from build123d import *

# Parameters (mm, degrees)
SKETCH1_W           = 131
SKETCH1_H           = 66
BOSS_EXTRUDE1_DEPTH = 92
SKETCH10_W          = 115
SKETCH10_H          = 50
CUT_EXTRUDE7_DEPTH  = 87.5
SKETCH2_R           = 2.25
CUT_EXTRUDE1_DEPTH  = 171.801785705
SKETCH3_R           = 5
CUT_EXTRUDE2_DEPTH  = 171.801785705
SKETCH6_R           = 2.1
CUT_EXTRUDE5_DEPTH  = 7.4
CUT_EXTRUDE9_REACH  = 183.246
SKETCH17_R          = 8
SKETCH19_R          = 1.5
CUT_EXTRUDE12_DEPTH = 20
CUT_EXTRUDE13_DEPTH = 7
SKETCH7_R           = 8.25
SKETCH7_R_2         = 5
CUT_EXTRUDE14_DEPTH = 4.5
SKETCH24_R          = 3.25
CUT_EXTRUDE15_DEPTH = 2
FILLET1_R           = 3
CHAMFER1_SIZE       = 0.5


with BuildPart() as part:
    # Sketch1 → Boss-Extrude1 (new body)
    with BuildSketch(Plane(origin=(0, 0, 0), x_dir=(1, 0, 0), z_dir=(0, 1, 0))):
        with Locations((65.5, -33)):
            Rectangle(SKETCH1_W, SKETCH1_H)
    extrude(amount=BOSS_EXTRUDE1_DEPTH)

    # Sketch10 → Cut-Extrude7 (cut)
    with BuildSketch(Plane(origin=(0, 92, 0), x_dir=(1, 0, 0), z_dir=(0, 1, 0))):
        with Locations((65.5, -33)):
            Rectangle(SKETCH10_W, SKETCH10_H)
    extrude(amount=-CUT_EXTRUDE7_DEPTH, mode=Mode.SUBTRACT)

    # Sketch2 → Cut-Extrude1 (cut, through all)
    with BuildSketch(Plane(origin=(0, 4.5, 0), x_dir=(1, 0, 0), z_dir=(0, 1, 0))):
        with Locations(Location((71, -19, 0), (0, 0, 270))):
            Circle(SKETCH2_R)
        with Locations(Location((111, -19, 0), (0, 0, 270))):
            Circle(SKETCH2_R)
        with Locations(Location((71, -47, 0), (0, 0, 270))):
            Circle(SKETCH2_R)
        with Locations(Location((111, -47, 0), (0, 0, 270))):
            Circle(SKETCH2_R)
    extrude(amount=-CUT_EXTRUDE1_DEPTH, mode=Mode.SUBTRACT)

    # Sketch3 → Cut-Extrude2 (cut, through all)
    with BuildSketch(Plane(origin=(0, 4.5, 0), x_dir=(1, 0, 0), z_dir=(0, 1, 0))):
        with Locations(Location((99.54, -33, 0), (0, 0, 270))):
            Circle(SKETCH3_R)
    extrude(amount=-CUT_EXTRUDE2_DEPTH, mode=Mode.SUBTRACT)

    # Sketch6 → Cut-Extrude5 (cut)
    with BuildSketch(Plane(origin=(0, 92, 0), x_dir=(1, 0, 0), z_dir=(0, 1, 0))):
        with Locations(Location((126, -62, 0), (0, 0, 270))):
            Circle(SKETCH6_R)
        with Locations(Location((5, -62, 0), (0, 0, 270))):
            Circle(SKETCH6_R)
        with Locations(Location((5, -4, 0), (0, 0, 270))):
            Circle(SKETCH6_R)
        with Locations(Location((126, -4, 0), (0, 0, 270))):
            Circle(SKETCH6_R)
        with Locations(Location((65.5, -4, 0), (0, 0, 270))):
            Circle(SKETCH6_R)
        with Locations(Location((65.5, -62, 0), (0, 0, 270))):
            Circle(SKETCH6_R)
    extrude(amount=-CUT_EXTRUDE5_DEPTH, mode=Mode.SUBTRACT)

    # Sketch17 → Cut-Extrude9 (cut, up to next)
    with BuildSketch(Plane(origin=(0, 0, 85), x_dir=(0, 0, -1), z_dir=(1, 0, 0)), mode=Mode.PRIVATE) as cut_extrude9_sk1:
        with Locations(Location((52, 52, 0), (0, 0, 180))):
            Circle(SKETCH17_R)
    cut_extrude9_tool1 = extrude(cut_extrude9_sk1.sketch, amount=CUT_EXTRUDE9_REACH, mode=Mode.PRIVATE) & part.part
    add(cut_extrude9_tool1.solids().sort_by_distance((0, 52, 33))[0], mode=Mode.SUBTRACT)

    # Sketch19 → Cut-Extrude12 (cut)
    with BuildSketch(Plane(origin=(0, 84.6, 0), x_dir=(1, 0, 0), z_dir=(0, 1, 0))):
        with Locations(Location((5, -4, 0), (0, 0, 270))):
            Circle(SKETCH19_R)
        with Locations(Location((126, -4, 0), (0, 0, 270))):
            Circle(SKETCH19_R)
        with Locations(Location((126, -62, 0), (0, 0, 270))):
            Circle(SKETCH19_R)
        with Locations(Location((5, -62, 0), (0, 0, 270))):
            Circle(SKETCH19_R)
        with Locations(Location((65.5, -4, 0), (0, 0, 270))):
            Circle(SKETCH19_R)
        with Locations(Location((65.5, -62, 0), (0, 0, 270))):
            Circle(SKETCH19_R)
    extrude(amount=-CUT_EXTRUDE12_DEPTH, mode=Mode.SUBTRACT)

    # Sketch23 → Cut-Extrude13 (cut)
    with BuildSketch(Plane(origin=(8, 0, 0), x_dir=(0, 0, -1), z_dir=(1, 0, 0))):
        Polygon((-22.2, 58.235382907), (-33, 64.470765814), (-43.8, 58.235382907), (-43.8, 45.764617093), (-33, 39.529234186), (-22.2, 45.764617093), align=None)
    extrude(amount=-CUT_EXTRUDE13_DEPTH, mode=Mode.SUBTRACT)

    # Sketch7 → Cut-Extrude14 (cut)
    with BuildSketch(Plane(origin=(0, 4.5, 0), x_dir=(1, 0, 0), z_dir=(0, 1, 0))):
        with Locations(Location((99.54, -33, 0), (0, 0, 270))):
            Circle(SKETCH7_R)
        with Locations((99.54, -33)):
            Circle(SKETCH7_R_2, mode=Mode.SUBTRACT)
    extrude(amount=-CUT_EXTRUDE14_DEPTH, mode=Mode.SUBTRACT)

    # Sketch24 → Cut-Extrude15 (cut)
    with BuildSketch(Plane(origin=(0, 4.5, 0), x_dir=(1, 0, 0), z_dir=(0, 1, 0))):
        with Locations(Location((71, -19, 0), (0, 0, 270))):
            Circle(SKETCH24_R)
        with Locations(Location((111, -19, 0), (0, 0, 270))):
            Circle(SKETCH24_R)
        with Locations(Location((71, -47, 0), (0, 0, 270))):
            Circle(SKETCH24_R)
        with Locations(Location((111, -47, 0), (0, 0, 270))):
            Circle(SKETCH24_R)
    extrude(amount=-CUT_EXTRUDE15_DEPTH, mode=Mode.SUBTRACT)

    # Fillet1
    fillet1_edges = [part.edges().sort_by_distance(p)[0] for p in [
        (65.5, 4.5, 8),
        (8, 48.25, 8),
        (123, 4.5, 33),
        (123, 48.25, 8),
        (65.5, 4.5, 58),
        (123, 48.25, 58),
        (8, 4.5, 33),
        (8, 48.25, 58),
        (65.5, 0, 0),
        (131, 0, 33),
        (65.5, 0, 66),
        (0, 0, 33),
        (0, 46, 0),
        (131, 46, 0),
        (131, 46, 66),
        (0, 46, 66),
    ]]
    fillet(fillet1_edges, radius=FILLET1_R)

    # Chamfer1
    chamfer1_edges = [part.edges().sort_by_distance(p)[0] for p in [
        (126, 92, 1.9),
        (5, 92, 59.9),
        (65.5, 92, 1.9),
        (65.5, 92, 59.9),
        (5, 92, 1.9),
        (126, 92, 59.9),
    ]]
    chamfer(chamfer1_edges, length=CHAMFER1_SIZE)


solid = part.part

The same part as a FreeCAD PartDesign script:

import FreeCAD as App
import Part
import Sketcher
Q = App.Units.Quantity


def edges_at(feature, points):
    """Names of the edges that pass closest to the given points."""
    edges = feature.Shape.Edges
    near = lambda p: min(range(len(edges)), key=lambda i: edges[i].distToShape(Part.Vertex(*p))[0])
    return sorted({f"Edge{near(p) + 1}" for p in points})


def add_polygon(sketch, points):
    """Adds a closed chain of lines whose ends are joined by coincident constraints."""
    first, n = sketch.GeometryCount, len(points)
    for a, b in zip(points, points[1:] + points[:1]):
        sketch.addGeometry(Part.LineSegment(App.Vector(*a, 0), App.Vector(*b, 0)), False)
    for i in range(n):
        sketch.addConstraint(Sketcher.Constraint("Coincident", first + i, 2, first + (i + 1) % n, 1))

doc = App.newDocument("Part")
body = doc.addObject("PartDesign::Body", "Body")

sketch1 = body.newObject("Sketcher::SketchObject", "Sketch")
sketch1.AttachmentSupport = (doc.getObject("XZ_Plane"), [""])
sketch1.MapMode = "FlatFace"
add_polygon(sketch1, [(0, 0), (0, 66), (131, 66), (131, 0)])
sketch1.addConstraint([
    Sketcher.Constraint("Vertical", 0),
    Sketcher.Constraint("Horizontal", 1),
    Sketcher.Constraint("Vertical", 2),
    Sketcher.Constraint("Horizontal", 3),
    Sketcher.Constraint("Coincident", 3, 2, -1, 1),
    Sketcher.Constraint("DistanceX", 1, 1, 1, 2, 131.0),
    Sketcher.Constraint("DistanceY", 0, 1, 0, 2, 66.0),
])
pad1 = body.newObject("PartDesign::Pad", "Pad")
pad1.Profile = sketch1
pad1.Length = 92
pad1.Reversed = True

sketch2 = body.newObject("Sketcher::SketchObject", "Sketch001")
sketch2.AttachmentSupport = (doc.getObject("XZ_Plane"), [""])
sketch2.MapMode = "FlatFace"
sketch2.AttachmentOffset = App.Placement(App.Vector(0, 0, -92), App.Rotation())
add_polygon(sketch2, [(8, 8), (8, 58), (123, 58), (123, 8)])
sketch2.addConstraint([
    Sketcher.Constraint("Vertical", 0),
    Sketcher.Constraint("Horizontal", 1),
    Sketcher.Constraint("Vertical", 2),
    Sketcher.Constraint("Horizontal", 3),
    Sketcher.Constraint("DistanceX", 1, 1, 1, 2, 115.0),
    Sketcher.Constraint("DistanceY", 0, 1, 0, 2, 50.0),
    Sketcher.Constraint("DistanceX", -1, 1, 0, 2, 8.0),
    Sketcher.Constraint("DistanceY", -1, 1, 0, 2, 58.0),
])
pocket1 = body.newObject("PartDesign::Pocket", "Pocket")
pocket1.Profile = sketch2
pocket1.Length = 87.5
pocket1.Reversed = True

sketch3 = body.newObject("Sketcher::SketchObject", "Sketch002")
sketch3.AttachmentSupport = (doc.getObject("XZ_Plane"), [""])
sketch3.MapMode = "FlatFace"
sketch3.AttachmentOffset = App.Placement(App.Vector(0, 0, -4.5), App.Rotation())
sketch3.addGeometry([
    Part.Circle(App.Vector(71, 19, 0), App.Vector(0, 0, 1), 2.2),
    Part.Circle(App.Vector(111, 19, 0), App.Vector(0, 0, 1), 2.2),
    Part.Circle(App.Vector(71, 47, 0), App.Vector(0, 0, 1), 2.2),
    Part.Circle(App.Vector(111, 47, 0), App.Vector(0, 0, 1), 2.2),
], False)
sketch3.addConstraint([
    Sketcher.Constraint("Equal", 0, 1),
    Sketcher.Constraint("Equal", 1, 2),
    Sketcher.Constraint("Equal", 2, 3),
    Sketcher.Constraint("Horizontal", 0, 3, 1, 3),
    Sketcher.Constraint("Horizontal", 2, 3, 3, 3),
    Sketcher.Constraint("Vertical", 0, 3, 2, 3),
    Sketcher.Constraint("Vertical", 1, 3, 3, 3),
    Sketcher.Constraint("Diameter", 0, 4.5),
    Sketcher.Constraint("DistanceX", -1, 1, 0, 3, 71.0),
    Sketcher.Constraint("DistanceY", -1, 1, 0, 3, 19.0),
    Sketcher.Constraint("DistanceX", -1, 1, 1, 3, 111.0),
    Sketcher.Constraint("DistanceY", -1, 1, 2, 3, 47.0),
])
pocket2 = body.newObject("PartDesign::Pocket", "Pocket001")
pocket2.Profile = sketch3
pocket2.Type = "ThroughAll"
pocket2.Reversed = True

sketch4 = body.newObject("Sketcher::SketchObject", "Sketch003")
sketch4.AttachmentSupport = (doc.getObject("XZ_Plane"), [""])
sketch4.MapMode = "FlatFace"
sketch4.AttachmentOffset = App.Placement(App.Vector(0, 0, -4.5), App.Rotation())
sketch4.addGeometry(Part.Circle(App.Vector(100, 33, 0), App.Vector(0, 0, 1), 5), False)
sketch4.addConstraint([
    Sketcher.Constraint("Diameter", 0, 10.0),
    Sketcher.Constraint("DistanceY", -1, 1, 0, 3, 33.0),
    Sketcher.Constraint("DistanceX", -1, 1, 0, 3, 99.54),
])
pocket3 = body.newObject("PartDesign::Pocket", "Pocket002")
pocket3.Profile = sketch4
pocket3.Type = "ThroughAll"
pocket3.Reversed = True

sketch5 = body.newObject("Sketcher::SketchObject", "Sketch004")
sketch5.AttachmentSupport = (doc.getObject("XZ_Plane"), [""])
sketch5.MapMode = "FlatFace"
sketch5.AttachmentOffset = App.Placement(App.Vector(0, 0, -92), App.Rotation())
sketch5.addGeometry([
    Part.Circle(App.Vector(126, 62, 0), App.Vector(0, 0, 1), 2.1),
    Part.Circle(App.Vector(5, 62, 0), App.Vector(0, 0, 1), 2.1),
    Part.Circle(App.Vector(5, 4, 0), App.Vector(0, 0, 1), 2.1),
    Part.Circle(App.Vector(126, 4, 0), App.Vector(0, 0, 1), 2.1),
    Part.Circle(App.Vector(65.5, 4, 0), App.Vector(0, 0, 1), 2.1),
    Part.Circle(App.Vector(65.5, 62, 0), App.Vector(0, 0, 1), 2.1),
], False)
sketch5.addConstraint([
    Sketcher.Constraint("Equal", 0, 1),
    Sketcher.Constraint("Equal", 1, 2),
    Sketcher.Constraint("Equal", 2, 3),
    Sketcher.Constraint("Equal", 3, 4),
    Sketcher.Constraint("Equal", 4, 5),
    Sketcher.Constraint("Horizontal", 0, 3, 1, 3),
    Sketcher.Constraint("Horizontal", 2, 3, 3, 3),
    Sketcher.Constraint("Horizontal", 3, 3, 4, 3),
    Sketcher.Constraint("Horizontal", 1, 3, 5, 3),
    Sketcher.Constraint("Vertical", 1, 3, 2, 3),
    Sketcher.Constraint("Vertical", 0, 3, 3, 3),
    Sketcher.Constraint("Vertical", 4, 3, 5, 3),
    Sketcher.Constraint("Diameter", 0, 4.2),
    Sketcher.Constraint("DistanceX", -1, 1, 0, 3, 126.0),
    Sketcher.Constraint("DistanceY", -1, 1, 0, 3, 62.0),
    Sketcher.Constraint("DistanceX", -1, 1, 1, 3, 5.0),
    Sketcher.Constraint("DistanceY", -1, 1, 2, 3, 4.0),
    Sketcher.Constraint("DistanceX", -1, 1, 4, 3, 65.5),
])
pocket4 = body.newObject("PartDesign::Pocket", "Pocket003")
pocket4.Profile = sketch5
pocket4.Length = 7.4
pocket4.Reversed = True

sketch6 = body.newObject("Sketcher::SketchObject", "Sketch005")
sketch6.AttachmentSupport = (doc.getObject("YZ_Plane"), [""])
sketch6.MapMode = "FlatFace"
sketch6.addGeometry(Part.Circle(App.Vector(52, 33, 0), App.Vector(0, 0, 1), 8), False)
sketch6.addConstraint([
    Sketcher.Constraint("Diameter", 0, 16.0),
    Sketcher.Constraint("DistanceX", -1, 1, 0, 3, 52.0),
    Sketcher.Constraint("DistanceY", -1, 1, 0, 3, 33.0),
])
pocket5 = body.newObject("PartDesign::Pocket", "Pocket004")
pocket5.Profile = sketch6
pocket5.Type = "UpToFirst"
pocket5.Reversed = True

sketch7 = body.newObject("Sketcher::SketchObject", "Sketch006")
sketch7.AttachmentSupport = (doc.getObject("XZ_Plane"), [""])
sketch7.MapMode = "FlatFace"
sketch7.AttachmentOffset = App.Placement(App.Vector(0, 0, -84.6), App.Rotation())
sketch7.addGeometry([
    Part.Circle(App.Vector(5, 4, 0), App.Vector(0, 0, 1), 1.5),
    Part.Circle(App.Vector(126, 4, 0), App.Vector(0, 0, 1), 1.5),
    Part.Circle(App.Vector(126, 62, 0), App.Vector(0, 0, 1), 1.5),
    Part.Circle(App.Vector(5, 62, 0), App.Vector(0, 0, 1), 1.5),
    Part.Circle(App.Vector(65.5, 4, 0), App.Vector(0, 0, 1), 1.5),
    Part.Circle(App.Vector(65.5, 62, 0), App.Vector(0, 0, 1), 1.5),
], False)
sketch7.addConstraint([
    Sketcher.Constraint("Equal", 0, 1),
    Sketcher.Constraint("Equal", 1, 2),
    Sketcher.Constraint("Equal", 2, 3),
    Sketcher.Constraint("Equal", 3, 4),
    Sketcher.Constraint("Equal", 4, 5),
    Sketcher.Constraint("Horizontal", 0, 3, 1, 3),
    Sketcher.Constraint("Horizontal", 2, 3, 3, 3),
    Sketcher.Constraint("Horizontal", 1, 3, 4, 3),
    Sketcher.Constraint("Horizontal", 3, 3, 5, 3),
    Sketcher.Constraint("Vertical", 1, 3, 2, 3),
    Sketcher.Constraint("Vertical", 0, 3, 3, 3),
    Sketcher.Constraint("Vertical", 4, 3, 5, 3),
    Sketcher.Constraint("Diameter", 0, 3.0),
    Sketcher.Constraint("DistanceX", -1, 1, 0, 3, 5.0),
    Sketcher.Constraint("DistanceY", -1, 1, 0, 3, 4.0),
    Sketcher.Constraint("DistanceX", -1, 1, 1, 3, 126.0),
    Sketcher.Constraint("DistanceY", -1, 1, 2, 3, 62.0),
    Sketcher.Constraint("DistanceX", -1, 1, 4, 3, 65.5),
])
pocket6 = body.newObject("PartDesign::Pocket", "Pocket005")
pocket6.Profile = sketch7
pocket6.Length = 20
pocket6.Reversed = True

sketch8 = body.newObject("Sketcher::SketchObject", "Sketch007")
sketch8.AttachmentSupport = (doc.getObject("YZ_Plane"), [""])
sketch8.MapMode = "FlatFace"
sketch8.AttachmentOffset = App.Placement(App.Vector(0, 0, 8), App.Rotation())
add_polygon(sketch8, [(58, 22), (64, 33), (58, 44), (46, 44), (40, 33), (46, 22)])
sketch8.addConstraint([
    Sketcher.Constraint("Horizontal", 2),
    Sketcher.Constraint("Horizontal", 5),
    Sketcher.Constraint("Parallel", 0, 3),
    Sketcher.Constraint("Parallel", 1, 4),
    Sketcher.Constraint("Horizontal", 0, 2, 3, 2),
    Sketcher.Constraint("Vertical", 2, 2, 4, 2),
    Sketcher.Constraint("Vertical", 1, 2, 5, 2),
    Sketcher.Constraint("Angle", 0, Q("60 deg")),
    Sketcher.Constraint("DistanceY", -1, 1, 0, 2, 33.0),
    Sketcher.Constraint("DistanceY", -1, 1, 1, 2, 43.8),
    Sketcher.Constraint("DistanceX", 2, 2, 2, 1, 12.470766),
    Sketcher.Constraint("DistanceX", -1, 1, 0, 2, 64.470766),
])
pocket7 = body.newObject("PartDesign::Pocket", "Pocket006")
pocket7.Profile = sketch8
pocket7.Length = 7

sketch9 = body.newObject("Sketcher::SketchObject", "Sketch008")
sketch9.AttachmentSupport = (doc.getObject("XZ_Plane"), [""])
sketch9.MapMode = "FlatFace"
sketch9.AttachmentOffset = App.Placement(App.Vector(0, 0, -4.5), App.Rotation())
sketch9.addGeometry([
    Part.Circle(App.Vector(100, 33, 0), App.Vector(0, 0, 1), 8),
    Part.Circle(App.Vector(100, 33, 0), App.Vector(0, 0, 1), 5),
], False)
sketch9.addConstraint([
    Sketcher.Constraint("Coincident", 1, 3, 0, 3),
    Sketcher.Constraint("Diameter", 1, 10.0),
    Sketcher.Constraint("Diameter", 0, 16.5),
    Sketcher.Constraint("DistanceY", -1, 1, 0, 3, 33.0),
    Sketcher.Constraint("DistanceX", -1, 1, 0, 3, 99.54),
])
pocket8 = body.newObject("PartDesign::Pocket", "Pocket007")
pocket8.Profile = sketch9
pocket8.Length = 4.5
pocket8.Reversed = True

sketch10 = body.newObject("Sketcher::SketchObject", "Sketch009")
sketch10.AttachmentSupport = (doc.getObject("XZ_Plane"), [""])
sketch10.MapMode = "FlatFace"
sketch10.AttachmentOffset = App.Placement(App.Vector(0, 0, -4.5), App.Rotation())
sketch10.addGeometry([
    Part.Circle(App.Vector(71, 19, 0), App.Vector(0, 0, 1), 3.2),
    Part.Circle(App.Vector(111, 19, 0), App.Vector(0, 0, 1), 3.2),
    Part.Circle(App.Vector(71, 47, 0), App.Vector(0, 0, 1), 3.2),
    Part.Circle(App.Vector(111, 47, 0), App.Vector(0, 0, 1), 3.2),
], False)
sketch10.addConstraint([
    Sketcher.Constraint("Equal", 0, 1),
    Sketcher.Constraint("Equal", 1, 2),
    Sketcher.Constraint("Equal", 2, 3),
    Sketcher.Constraint("Horizontal", 0, 3, 1, 3),
    Sketcher.Constraint("Horizontal", 2, 3, 3, 3),
    Sketcher.Constraint("Vertical", 0, 3, 2, 3),
    Sketcher.Constraint("Vertical", 1, 3, 3, 3),
    Sketcher.Constraint("Diameter", 0, 6.5),
    Sketcher.Constraint("DistanceX", -1, 1, 0, 3, 71.0),
    Sketcher.Constraint("DistanceY", -1, 1, 0, 3, 19.0),
    Sketcher.Constraint("DistanceX", -1, 1, 1, 3, 111.0),
    Sketcher.Constraint("DistanceY", -1, 1, 2, 3, 47.0),
])
pocket9 = body.newObject("PartDesign::Pocket", "Pocket008")
pocket9.Profile = sketch10
pocket9.Length = 2
pocket9.Reversed = True
doc.recompute()

fillet = body.newObject("PartDesign::Fillet", "Fillet")
fillet.Base = (pocket9, edges_at(pocket9, [
    (65.5, 4.5, 8),
    (8, 48.25, 8),
    (123, 4.5, 33),
    (123, 48.25, 8),
    (65.5, 4.5, 58),
    (123, 48.25, 58),
    (8, 4.5, 33),
    (8, 48.25, 58),
    (65.5, 0, 0),
    (131, 0, 33),
    (65.5, 0, 66),
    (0, 0, 33),
    (0, 46, 0),
    (131, 46, 0),
    (131, 46, 66),
    (0, 46, 66),
]))
fillet.Radius = 3
doc.recompute()

chamfer = body.newObject("PartDesign::Chamfer", "Chamfer")
chamfer.Base = (fillet, edges_at(fillet, [
    (126, 92, 1.9),
    (5, 92, 59.9),
    (65.5, 92, 1.9),
    (65.5, 92, 59.9),
    (5, 92, 1.9),
    (126, 92, 59.9),
]))
chamfer.Size = 0.5

doc.recompute()
